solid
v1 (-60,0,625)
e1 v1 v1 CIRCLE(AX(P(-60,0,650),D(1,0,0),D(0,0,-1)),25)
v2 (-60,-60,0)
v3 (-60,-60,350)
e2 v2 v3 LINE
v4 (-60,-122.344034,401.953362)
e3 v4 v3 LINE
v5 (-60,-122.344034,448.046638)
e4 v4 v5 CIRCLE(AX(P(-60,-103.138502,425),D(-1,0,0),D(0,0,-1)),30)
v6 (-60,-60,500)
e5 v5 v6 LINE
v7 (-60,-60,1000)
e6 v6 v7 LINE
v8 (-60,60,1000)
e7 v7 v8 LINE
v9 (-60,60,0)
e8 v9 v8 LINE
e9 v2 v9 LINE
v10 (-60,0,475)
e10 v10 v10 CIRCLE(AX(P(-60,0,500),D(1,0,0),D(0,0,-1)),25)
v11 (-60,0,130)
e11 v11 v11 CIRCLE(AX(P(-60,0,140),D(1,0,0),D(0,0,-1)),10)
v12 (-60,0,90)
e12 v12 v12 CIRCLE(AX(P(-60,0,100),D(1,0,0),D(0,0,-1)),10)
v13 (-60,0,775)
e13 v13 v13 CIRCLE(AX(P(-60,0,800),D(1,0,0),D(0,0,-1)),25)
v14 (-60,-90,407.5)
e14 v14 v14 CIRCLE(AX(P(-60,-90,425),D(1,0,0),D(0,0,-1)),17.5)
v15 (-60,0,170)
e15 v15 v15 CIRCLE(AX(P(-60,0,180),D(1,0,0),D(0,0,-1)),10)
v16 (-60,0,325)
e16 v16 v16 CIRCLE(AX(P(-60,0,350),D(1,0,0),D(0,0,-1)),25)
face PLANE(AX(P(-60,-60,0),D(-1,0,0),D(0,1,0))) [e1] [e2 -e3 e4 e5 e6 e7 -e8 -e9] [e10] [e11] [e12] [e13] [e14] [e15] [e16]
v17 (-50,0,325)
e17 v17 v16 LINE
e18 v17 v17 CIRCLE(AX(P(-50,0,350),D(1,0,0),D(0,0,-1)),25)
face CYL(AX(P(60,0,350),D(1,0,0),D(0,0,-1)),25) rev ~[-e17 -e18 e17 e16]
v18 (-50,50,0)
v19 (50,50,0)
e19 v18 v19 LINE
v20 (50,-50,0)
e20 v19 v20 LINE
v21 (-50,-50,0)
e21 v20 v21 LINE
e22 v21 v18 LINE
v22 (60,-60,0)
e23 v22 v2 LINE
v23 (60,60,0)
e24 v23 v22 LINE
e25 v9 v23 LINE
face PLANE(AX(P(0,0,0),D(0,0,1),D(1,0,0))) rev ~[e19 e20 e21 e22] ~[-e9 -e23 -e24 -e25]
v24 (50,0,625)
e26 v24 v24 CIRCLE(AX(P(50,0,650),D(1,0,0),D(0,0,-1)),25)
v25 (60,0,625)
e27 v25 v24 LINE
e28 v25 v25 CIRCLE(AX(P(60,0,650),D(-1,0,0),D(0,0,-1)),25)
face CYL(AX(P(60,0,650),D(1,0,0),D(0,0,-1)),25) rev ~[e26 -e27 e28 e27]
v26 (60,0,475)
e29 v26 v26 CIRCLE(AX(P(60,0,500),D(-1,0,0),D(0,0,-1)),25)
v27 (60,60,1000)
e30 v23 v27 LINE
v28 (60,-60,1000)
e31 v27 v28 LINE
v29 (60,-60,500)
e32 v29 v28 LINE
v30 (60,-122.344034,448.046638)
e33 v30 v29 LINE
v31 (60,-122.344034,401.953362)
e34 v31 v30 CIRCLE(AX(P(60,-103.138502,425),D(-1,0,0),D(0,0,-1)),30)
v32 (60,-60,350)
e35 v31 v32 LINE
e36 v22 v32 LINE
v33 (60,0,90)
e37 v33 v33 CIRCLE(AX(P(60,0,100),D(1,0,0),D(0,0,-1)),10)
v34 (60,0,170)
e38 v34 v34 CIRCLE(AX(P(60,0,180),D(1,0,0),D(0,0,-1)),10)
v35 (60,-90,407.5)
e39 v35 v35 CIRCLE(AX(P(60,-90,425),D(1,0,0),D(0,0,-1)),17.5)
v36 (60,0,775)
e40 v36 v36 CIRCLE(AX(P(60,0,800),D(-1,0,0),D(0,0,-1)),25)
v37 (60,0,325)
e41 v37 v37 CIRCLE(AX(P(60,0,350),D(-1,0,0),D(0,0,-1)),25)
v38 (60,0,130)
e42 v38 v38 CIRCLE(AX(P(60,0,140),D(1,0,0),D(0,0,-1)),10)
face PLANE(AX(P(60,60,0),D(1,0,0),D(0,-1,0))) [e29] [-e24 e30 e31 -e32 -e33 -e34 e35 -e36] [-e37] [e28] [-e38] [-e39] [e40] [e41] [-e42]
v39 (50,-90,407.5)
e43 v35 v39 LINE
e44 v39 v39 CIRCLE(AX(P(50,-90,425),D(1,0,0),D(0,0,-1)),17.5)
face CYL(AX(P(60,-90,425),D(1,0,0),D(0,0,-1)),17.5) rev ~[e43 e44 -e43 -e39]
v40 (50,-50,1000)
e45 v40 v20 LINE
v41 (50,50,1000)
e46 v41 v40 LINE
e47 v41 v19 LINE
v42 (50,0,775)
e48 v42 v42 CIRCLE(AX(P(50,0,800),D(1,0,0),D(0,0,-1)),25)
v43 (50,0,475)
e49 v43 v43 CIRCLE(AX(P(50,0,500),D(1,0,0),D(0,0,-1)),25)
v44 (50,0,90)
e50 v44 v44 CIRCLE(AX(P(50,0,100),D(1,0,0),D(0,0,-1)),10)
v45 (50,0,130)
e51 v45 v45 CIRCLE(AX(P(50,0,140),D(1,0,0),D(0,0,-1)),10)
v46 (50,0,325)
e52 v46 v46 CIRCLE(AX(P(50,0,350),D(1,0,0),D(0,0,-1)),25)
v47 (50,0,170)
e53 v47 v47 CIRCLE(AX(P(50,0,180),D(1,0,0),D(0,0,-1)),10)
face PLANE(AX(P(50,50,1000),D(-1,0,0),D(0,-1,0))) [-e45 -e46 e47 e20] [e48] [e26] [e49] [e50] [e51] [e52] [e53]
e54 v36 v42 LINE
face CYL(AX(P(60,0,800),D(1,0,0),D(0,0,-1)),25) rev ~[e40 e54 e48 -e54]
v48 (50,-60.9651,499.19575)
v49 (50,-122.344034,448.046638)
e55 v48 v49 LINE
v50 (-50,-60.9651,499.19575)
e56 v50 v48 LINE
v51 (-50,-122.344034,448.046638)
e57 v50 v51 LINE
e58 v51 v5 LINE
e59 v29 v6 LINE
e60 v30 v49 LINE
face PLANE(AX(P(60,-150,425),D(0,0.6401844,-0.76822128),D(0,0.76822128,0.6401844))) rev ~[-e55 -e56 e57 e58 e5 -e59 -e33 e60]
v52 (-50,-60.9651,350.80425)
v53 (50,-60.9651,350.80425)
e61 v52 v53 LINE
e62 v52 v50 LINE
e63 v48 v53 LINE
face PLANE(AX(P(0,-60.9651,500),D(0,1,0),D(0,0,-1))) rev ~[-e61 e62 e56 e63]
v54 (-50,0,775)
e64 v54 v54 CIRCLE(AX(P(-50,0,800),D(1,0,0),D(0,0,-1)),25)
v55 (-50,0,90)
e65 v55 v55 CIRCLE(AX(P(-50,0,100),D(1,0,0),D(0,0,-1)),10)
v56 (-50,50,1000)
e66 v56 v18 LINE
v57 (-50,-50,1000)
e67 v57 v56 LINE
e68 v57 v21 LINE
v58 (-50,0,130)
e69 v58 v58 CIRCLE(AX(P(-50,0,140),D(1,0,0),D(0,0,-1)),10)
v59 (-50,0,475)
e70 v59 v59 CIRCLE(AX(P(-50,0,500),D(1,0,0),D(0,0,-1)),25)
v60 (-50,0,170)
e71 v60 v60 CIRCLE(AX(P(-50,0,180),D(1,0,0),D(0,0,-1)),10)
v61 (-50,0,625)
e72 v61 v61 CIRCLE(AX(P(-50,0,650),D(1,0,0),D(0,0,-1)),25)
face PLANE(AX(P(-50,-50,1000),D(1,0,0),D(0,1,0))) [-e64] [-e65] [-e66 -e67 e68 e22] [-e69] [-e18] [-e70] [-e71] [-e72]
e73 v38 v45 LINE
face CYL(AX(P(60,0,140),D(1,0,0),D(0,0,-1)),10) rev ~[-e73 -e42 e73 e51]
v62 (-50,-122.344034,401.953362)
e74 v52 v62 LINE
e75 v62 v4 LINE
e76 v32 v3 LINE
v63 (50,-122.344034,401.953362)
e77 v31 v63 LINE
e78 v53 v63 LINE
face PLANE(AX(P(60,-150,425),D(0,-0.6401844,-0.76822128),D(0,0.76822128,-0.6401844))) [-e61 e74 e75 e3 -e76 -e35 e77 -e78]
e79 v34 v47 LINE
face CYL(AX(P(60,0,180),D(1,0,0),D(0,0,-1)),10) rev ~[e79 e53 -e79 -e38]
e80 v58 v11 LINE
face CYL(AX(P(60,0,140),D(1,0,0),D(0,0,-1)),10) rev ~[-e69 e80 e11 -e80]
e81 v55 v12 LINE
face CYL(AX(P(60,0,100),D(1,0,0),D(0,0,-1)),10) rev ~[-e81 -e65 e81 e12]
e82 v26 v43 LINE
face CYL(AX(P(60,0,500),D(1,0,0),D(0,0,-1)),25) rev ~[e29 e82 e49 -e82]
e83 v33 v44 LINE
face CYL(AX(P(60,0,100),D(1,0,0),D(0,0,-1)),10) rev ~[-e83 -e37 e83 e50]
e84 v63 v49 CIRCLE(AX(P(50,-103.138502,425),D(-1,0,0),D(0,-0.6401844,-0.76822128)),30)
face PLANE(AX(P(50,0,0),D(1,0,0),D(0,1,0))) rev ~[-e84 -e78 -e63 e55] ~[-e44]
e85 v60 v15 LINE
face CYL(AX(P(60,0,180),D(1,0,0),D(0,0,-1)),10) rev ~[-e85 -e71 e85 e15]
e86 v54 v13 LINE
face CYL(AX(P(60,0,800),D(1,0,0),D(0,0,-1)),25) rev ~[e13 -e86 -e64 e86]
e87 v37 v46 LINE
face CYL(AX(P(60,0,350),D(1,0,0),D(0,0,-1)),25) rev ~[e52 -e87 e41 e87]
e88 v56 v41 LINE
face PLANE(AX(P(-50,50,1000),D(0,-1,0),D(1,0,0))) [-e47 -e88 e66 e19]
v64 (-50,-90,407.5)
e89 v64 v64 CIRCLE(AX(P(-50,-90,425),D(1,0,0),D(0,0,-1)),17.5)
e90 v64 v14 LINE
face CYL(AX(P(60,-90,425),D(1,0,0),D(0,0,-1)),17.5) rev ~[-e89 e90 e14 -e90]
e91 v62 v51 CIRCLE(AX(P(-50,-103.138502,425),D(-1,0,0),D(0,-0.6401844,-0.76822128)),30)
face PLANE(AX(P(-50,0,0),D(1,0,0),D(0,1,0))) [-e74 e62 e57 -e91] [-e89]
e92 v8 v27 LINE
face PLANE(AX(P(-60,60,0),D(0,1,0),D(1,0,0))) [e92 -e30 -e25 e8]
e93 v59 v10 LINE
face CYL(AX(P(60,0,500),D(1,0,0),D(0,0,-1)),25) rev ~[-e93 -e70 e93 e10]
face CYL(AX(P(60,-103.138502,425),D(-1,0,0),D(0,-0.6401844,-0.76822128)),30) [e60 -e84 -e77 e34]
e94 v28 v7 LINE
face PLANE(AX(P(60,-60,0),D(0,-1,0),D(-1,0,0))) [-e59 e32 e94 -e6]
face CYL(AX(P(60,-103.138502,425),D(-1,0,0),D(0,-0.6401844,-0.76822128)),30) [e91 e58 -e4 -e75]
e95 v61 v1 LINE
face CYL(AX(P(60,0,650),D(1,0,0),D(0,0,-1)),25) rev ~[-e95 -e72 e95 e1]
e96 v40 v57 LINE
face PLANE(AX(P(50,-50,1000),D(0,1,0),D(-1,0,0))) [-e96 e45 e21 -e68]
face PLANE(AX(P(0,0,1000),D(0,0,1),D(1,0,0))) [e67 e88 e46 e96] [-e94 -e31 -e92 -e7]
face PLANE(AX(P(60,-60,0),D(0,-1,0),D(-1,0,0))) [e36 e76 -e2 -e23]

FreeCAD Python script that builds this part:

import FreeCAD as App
import Part
import Sketcher

V = App.Vector


def edges_at(feature, points):
    """Names of the edges that pass closest to the given points."""
    edges = feature.Shape.Edges
    near = lambda p: min(range(len(edges)), key=lambda i: edges[i].distToShape(Part.Vertex(*p))[0])
    return sorted({f"Edge{near(p) + 1}" for p in points})

doc = App.newDocument("Part")
body = doc.addObject("PartDesign::Body", "Body")

# Sketch on XY plane
sketch1 = doc.addObject("Sketcher::SketchObject", "Sketch")
body.addObject(sketch1)
sketch1.AttachmentSupport = (doc.XY_Plane, [""])
sketch1.MapMode = "FlatFace"
sketch1.addGeometry([
    Part.LineSegment(V(60, 60, 0), V(-60, 60, 0)),
    Part.LineSegment(V(-60, 60, 0), V(-60, -60, 0)),
    Part.LineSegment(V(-60, -60, 0), V(60, -60, 0)),
    Part.LineSegment(V(60, -60, 0), V(60, 60, 0)),
], False)
sketch1.addConstraint([
    Sketcher.Constraint("Coincident", 0, 2, 1, 1),
    Sketcher.Constraint("Coincident", 1, 2, 2, 1),
    Sketcher.Constraint("Coincident", 2, 2, 3, 1),
    Sketcher.Constraint("Coincident", 3, 2, 0, 1),
    Sketcher.Constraint("Horizontal", 0),
    Sketcher.Constraint("Vertical", 1),
    Sketcher.Constraint("Horizontal", 2),
    Sketcher.Constraint("Vertical", 3),
    Sketcher.Constraint("Symmetric", 0, 2, 2, 2, -1, 1),
    Sketcher.Constraint("Equal", 2, 1),
    Sketcher.Constraint("DistanceX", 0, 2, 0, 1, 120.0),
])
pad1 = doc.addObject("PartDesign::Pad", "Pad")
body.addObject(pad1)
pad1.Profile = sketch1
pad1.Length = 1000

# Sketch on XY plane
sketch2 = doc.addObject("Sketcher::SketchObject", "Sketch001")
body.addObject(sketch2)
sketch2.AttachmentSupport = (doc.XY_Plane, [""])
sketch2.MapMode = "FlatFace"
sketch2.AttachmentOffset = App.Placement(V(0, 0, 1000), App.Rotation())
sketch2.addGeometry([
    Part.LineSegment(V(50, 50, 0), V(-50, 50, 0)),
    Part.LineSegment(V(-50, 50, 0), V(-50, -50, 0)),
    Part.LineSegment(V(-50, -50, 0), V(50, -50, 0)),
    Part.LineSegment(V(50, -50, 0), V(50, 50, 0)),
], False)
sketch2.addConstraint([
    Sketcher.Constraint("Coincident", 0, 2, 1, 1),
    Sketcher.Constraint("Coincident", 1, 2, 2, 1),
    Sketcher.Constraint("Coincident", 2, 2, 3, 1),
    Sketcher.Constraint("Coincident", 3, 2, 0, 1),
    Sketcher.Constraint("Horizontal", 0),
    Sketcher.Constraint("Vertical", 1),
    Sketcher.Constraint("Horizontal", 2),
    Sketcher.Constraint("Vertical", 3),
    Sketcher.Constraint("Symmetric", 0, 2, 2, 2, -1, 1),
    Sketcher.Constraint("Equal", 2, 1),
    Sketcher.Constraint("DistanceX", 0, 2, 0, 1, 100.0),
])
pocket1 = doc.addObject("PartDesign::Pocket", "Pocket")
body.addObject(pocket1)
pocket1.Profile = sketch2
pocket1.Length = 1000

# Sketch on YZ plane
sketch3 = doc.addObject("Sketcher::SketchObject", "Sketch002")
body.addObject(sketch3)
sketch3.AttachmentSupport = (doc.YZ_Plane, [""])
sketch3.MapMode = "FlatFace"
sketch3.AttachmentOffset = App.Placement(V(0, 0, 60), App.Rotation())
sketch3.addGeometry([
    Part.Circle(V(0, 800, 0), V(0, 0, 1), 25),
    Part.Circle(V(0, 350, 0), V(0, 0, 1), 25),
    Part.Circle(V(0, 500, 0), V(0, 0, 1), 25),
    Part.Circle(V(0, 650, 0), V(0, 0, 1), 25),
], False)
sketch3.addConstraint([
    Sketcher.Constraint("Equal", 0, 1),
    Sketcher.Constraint("Equal", 1, 2),
    Sketcher.Constraint("Equal", 2, 3),
    Sketcher.Constraint("PointOnObject", 0, 3, -2),
    Sketcher.Constraint("PointOnObject", 1, 3, -2),
    Sketcher.Constraint("PointOnObject", 2, 3, -2),
    Sketcher.Constraint("PointOnObject", 3, 3, -2),
    Sketcher.Constraint("Diameter", 0, 50.0),
    Sketcher.Constraint("DistanceY", 1, 3, 2, 3, 150.0),
    Sketcher.Constraint("DistanceY", 3, 3, 0, 3, 150.0),
    Sketcher.Constraint("DistanceY", 2, 3, 3, 3, 150.0),
    Sketcher.Constraint("DistanceY", -1, 1, 0, 3, 800.0),
])
pocket2 = doc.addObject("PartDesign::Pocket", "Pocket001")
body.addObject(pocket2)
pocket2.Profile = sketch3
pocket2.Length = 1000

# Sketch on YZ plane
sketch4 = doc.addObject("Sketcher::SketchObject", "Sketch003")
body.addObject(sketch4)
sketch4.AttachmentSupport = (doc.YZ_Plane, [""])
sketch4.MapMode = "FlatFace"
sketch4.AttachmentOffset = App.Placement(V(0, 0, 60), App.Rotation())
sketch4.addGeometry([
    Part.LineSegment(V(-150, 425, 0), V(-60, 350, 0)),
    Part.LineSegment(V(-60, 350, 0), V(-60, 500, 0)),
    Part.LineSegment(V(-60, 500, 0), V(-150, 425, 0)),
], False)
sketch4.addConstraint([
    Sketcher.Constraint("Coincident", 0, 2, 1, 1),
    Sketcher.Constraint("Coincident", 1, 2, 2, 1),
    Sketcher.Constraint("Coincident", 2, 2, 0, 1),
    Sketcher.Constraint("Vertical", 1),
    Sketcher.Constraint("Equal", 0, 2),
    Sketcher.Constraint("DistanceY", 1, 1, 1, 2, 150.0),
    Sketcher.Constraint("DistanceX", 0, 2, -1, 1, 60.0),
    Sketcher.Constraint("DistanceY", -1, 1, 0, 2, 350.0),
    Sketcher.Constraint("DistanceX", 2, 2, -1, 1, 150.0),
])
pad2 = doc.addObject("PartDesign::Pad", "Pad001")
body.addObject(pad2)
pad2.Profile = sketch4
pad2.Length = 120
pad2.Reversed = True
doc.recompute()

fillet = doc.addObject("PartDesign::Fillet", "Fillet")
body.addObject(fillet)
fillet.Base = (pad2, edges_at(pad2, [(0, -150, 425)]))
fillet.Radius = 30

# Sketch on YZ plane
sketch5 = doc.addObject("Sketcher::SketchObject", "Sketch004")
body.addObject(sketch5)
sketch5.AttachmentSupport = (doc.YZ_Plane, [""])
sketch5.MapMode = "FlatFace"
sketch5.AttachmentOffset = App.Placement(V(0, 0, 60), App.Rotation())
sketch5.addGeometry(Part.Circle(V(-90, 425, 0), V(0, 0, 1), 18), False)
sketch5.addConstraint([
    Sketcher.Constraint("Diameter", 0, 35.0),
    Sketcher.Constraint("DistanceX", 0, 3, -1, 1, 90.0),
    Sketcher.Constraint("DistanceY", -1, 1, 0, 3, 425.0),
])
pocket3 = doc.addObject("PartDesign::Pocket", "Pocket002")
body.addObject(pocket3)
pocket3.Profile = sketch5
pocket3.Length = 120

# Sketch on YZ plane
sketch6 = doc.addObject("Sketcher::SketchObject", "Sketch005")
body.addObject(sketch6)
sketch6.AttachmentSupport = (doc.YZ_Plane, [""])
sketch6.MapMode = "FlatFace"
sketch6.addGeometry([
    Part.LineSegment(V(-61, 350, 0), V(-61, 500, 0)),
    Part.LineSegment(V(-61, 500, 0), V(-151, 425, 0)),
    Part.LineSegment(V(-151, 425, 0), V(-61, 350, 0)),
], False)
sketch6.addConstraint([
    Sketcher.Constraint("Coincident", 0, 2, 1, 1),
    Sketcher.Constraint("Coincident", 1, 2, 2, 1),
    Sketcher.Constraint("Coincident", 2, 2, 0, 1),
    Sketcher.Constraint("Vertical", 0),
    Sketcher.Constraint("Equal", 1, 2),
    Sketcher.Constraint("DistanceY", -1, 1, 0, 2, 500.0),
    Sketcher.Constraint("DistanceY", 0, 1, 0, 2, 150.0),
    Sketcher.Constraint("DistanceX", 1, 2, 0, 2, 90.0),
    Sketcher.Constraint("DistanceX", 0, 2, -1, 1, 60.965),
])
pocket4 = doc.addObject("PartDesign::Pocket", "Pocket003")
body.addObject(pocket4)
pocket4.Profile = sketch6
pocket4.Length = 100
pocket4.Midplane = True

# Sketch on YZ plane
sketch7 = doc.addObject("Sketcher::SketchObject", "Sketch006")
body.addObject(sketch7)
sketch7.AttachmentSupport = (doc.YZ_Plane, [""])
sketch7.MapMode = "FlatFace"
sketch7.AttachmentOffset = App.Placement(V(0, 0, 60), App.Rotation())
sketch7.addGeometry([
    Part.Circle(V(0, 100, 0), V(0, 0, 1), 10),
    Part.Circle(V(0, 140, 0), V(0, 0, 1), 10),
    Part.Circle(V(0, 180, 0), V(0, 0, 1), 10),
], False)
sketch7.addConstraint([
    Sketcher.Constraint("Equal", 0, 1),
    Sketcher.Constraint("Equal", 1, 2),
    Sketcher.Constraint("PointOnObject", 0, 3, -2),
    Sketcher.Constraint("PointOnObject", 1, 3, -2),
    Sketcher.Constraint("PointOnObject", 2, 3, -2),
    Sketcher.Constraint("Diameter", 0, 20.0),
    Sketcher.Constraint("DistanceY", -1, 1, 0, 3, 100.0),
    Sketcher.Constraint("DistanceY", 0, 3, 1, 3, 40.0),
    Sketcher.Constraint("DistanceY", 1, 3, 2, 3, 40.0),
])
pocket5 = doc.addObject("PartDesign::Pocket", "Pocket004")
body.addObject(pocket5)
pocket5.Profile = sketch7
pocket5.Length = 599.25

doc.recompute()
